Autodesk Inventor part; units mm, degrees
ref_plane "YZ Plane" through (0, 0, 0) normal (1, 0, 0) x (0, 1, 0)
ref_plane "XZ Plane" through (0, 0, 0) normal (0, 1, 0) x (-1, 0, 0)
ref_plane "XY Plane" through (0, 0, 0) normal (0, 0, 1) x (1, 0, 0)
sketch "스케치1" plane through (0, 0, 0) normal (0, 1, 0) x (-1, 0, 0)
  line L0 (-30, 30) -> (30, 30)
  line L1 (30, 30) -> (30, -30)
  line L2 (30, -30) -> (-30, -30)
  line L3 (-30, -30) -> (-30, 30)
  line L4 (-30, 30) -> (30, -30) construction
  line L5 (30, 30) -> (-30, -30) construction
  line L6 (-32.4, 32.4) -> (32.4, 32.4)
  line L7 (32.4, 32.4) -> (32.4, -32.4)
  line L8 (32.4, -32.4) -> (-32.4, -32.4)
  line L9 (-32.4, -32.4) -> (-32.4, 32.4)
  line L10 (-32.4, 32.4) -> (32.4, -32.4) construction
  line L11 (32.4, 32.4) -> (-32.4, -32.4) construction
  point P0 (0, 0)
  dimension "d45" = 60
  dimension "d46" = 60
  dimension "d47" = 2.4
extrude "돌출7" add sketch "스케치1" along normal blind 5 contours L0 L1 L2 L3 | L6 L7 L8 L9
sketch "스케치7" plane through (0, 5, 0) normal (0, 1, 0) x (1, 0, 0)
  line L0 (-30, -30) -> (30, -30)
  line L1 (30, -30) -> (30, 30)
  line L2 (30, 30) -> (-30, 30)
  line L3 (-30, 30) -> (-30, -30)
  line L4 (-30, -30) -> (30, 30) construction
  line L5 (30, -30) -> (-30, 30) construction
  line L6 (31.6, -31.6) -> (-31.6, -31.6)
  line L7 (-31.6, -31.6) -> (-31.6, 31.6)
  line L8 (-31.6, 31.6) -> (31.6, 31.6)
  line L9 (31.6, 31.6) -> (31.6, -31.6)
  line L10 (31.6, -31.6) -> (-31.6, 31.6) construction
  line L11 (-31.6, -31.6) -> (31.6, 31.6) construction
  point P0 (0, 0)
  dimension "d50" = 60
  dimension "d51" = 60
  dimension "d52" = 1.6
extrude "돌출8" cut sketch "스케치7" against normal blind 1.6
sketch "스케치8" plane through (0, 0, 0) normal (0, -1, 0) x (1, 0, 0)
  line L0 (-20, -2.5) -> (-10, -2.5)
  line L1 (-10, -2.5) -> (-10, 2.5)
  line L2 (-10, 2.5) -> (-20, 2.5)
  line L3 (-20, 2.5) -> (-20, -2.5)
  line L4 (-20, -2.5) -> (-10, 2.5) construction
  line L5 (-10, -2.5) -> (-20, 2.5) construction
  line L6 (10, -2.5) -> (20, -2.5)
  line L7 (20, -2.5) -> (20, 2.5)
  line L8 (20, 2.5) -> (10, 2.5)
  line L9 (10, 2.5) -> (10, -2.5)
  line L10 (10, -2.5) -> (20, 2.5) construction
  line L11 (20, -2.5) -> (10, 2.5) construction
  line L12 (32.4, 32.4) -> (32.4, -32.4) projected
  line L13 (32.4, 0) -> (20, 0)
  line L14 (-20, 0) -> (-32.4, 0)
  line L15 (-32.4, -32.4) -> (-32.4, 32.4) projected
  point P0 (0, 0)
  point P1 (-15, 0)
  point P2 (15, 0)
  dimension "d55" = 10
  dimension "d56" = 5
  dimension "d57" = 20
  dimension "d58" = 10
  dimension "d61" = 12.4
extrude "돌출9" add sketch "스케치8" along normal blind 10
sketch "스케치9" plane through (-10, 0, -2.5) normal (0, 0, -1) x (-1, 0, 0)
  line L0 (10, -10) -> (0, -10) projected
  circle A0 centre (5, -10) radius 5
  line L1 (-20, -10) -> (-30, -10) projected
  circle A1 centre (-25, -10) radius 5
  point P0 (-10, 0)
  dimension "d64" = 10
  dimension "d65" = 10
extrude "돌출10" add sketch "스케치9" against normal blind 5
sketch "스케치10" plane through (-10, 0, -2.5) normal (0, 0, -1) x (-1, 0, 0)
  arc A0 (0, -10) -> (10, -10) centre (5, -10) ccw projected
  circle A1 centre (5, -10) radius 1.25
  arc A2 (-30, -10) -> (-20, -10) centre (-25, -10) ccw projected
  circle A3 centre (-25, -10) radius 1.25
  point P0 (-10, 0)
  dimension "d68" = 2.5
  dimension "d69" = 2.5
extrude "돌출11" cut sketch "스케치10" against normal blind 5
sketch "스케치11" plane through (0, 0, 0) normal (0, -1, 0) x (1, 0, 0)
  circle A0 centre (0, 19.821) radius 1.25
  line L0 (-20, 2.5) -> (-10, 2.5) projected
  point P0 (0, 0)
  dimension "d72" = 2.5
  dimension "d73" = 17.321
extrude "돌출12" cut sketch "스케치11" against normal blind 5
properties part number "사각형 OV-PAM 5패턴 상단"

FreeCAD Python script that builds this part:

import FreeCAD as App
import Part
import Sketcher
Q = App.Units.Quantity

doc = App.newDocument("Part")
params = doc.addObject("Spreadsheet::Sheet", "Params")
for row, (alias, value) in enumerate([
    ("sketch1_width", "64.8 mm"),
    ("pad1_length", "5 mm"),
    ("sketch2_width", "60 mm"),
    ("pocket1_length", "1.6 mm"),
    ("sketch3_width", "10 mm"),
    ("sketch3_height", "5 mm"),
    ("pad2_length", "10 mm"),
    ("sketch4_diameter", "10 mm"),
    ("pad3_length", "5 mm"),
    ("sketch5_diameter", "2.5 mm"),
    ("pocket2_length", "5 mm"),
    ("sketch6_diameter", "2.5 mm"),
    ("pocket3_length", "5 mm"),
], start=1):
    params.set(f"A{row}", alias)
    params.set(f"B{row}", "=" + value)
    params.setAlias(f"B{row}", alias)

body = doc.addObject("PartDesign::Body", "Body")

sketch1 = doc.addObject("Sketcher::SketchObject", "Sketch")
body.addObject(sketch1)
sketch1.AttachmentSupport = (doc.XZ_Plane, [""])
sketch1.MapMode = "FlatFace"
sketch1.addGeometry([
    Part.LineSegment(App.Vector(-32, 32, 0), App.Vector(32, 32, 0)),
    Part.LineSegment(App.Vector(32, 32, 0), App.Vector(32, -32, 0)),
    Part.LineSegment(App.Vector(32, -32, 0), App.Vector(-32, -32, 0)),
    Part.LineSegment(App.Vector(-32, -32, 0), App.Vector(-32, 32, 0)),
], False)
sketch1.addConstraint([
    Sketcher.Constraint("Coincident", 0, 2, 1, 1),
    Sketcher.Constraint("Coincident", 1, 2, 2, 1),
    Sketcher.Constraint("Coincident", 2, 2, 3, 1),
    Sketcher.Constraint("Coincident", 3, 2, 0, 1),
    Sketcher.Constraint("Horizontal", 0),
    Sketcher.Constraint("Vertical", 1),
    Sketcher.Constraint("Horizontal", 2),
    Sketcher.Constraint("Vertical", 3),
    Sketcher.Constraint("Symmetric", 0, 2, 2, 2, -1, 1),
    Sketcher.Constraint("Equal", 2, 1),
    Sketcher.Constraint("DistanceX", 0, 1, 0, 2, Q("64.8 mm")),
])
sketch1.setExpression("Constraints[10]", "Params.sketch1_width")
pad1 = doc.addObject("PartDesign::Pad", "Pad")
body.addObject(pad1)
pad1.Profile = sketch1
pad1.setExpression("Length", "Params.pad1_length")
pad1.Reversed = True

sketch2 = doc.addObject("Sketcher::SketchObject", "Sketch001")
body.addObject(sketch2)
sketch2.AttachmentSupport = (doc.XZ_Plane, [""])
sketch2.MapMode = "FlatFace"
sketch2.AttachmentOffset = App.Placement(App.Vector(0, 0, -5), App.Rotation())
sketch2.addGeometry([
    Part.LineSegment(App.Vector(-32, 32, 0), App.Vector(32, 32, 0)),
    Part.LineSegment(App.Vector(32, 32, 0), App.Vector(32, -32, 0)),
    Part.LineSegment(App.Vector(32, -32, 0), App.Vector(-32, -32, 0)),
    Part.LineSegment(App.Vector(-32, -32, 0), App.Vector(-32, 32, 0)),
    Part.LineSegment(App.Vector(30, 30, 0), App.Vector(-30, 30, 0)),
    Part.LineSegment(App.Vector(-30, 30, 0), App.Vector(-30, -30, 0)),
    Part.LineSegment(App.Vector(-30, -30, 0), App.Vector(30, -30, 0)),
    Part.LineSegment(App.Vector(30, -30, 0), App.Vector(30, 30, 0)),
], False)
sketch2.addConstraint([
    Sketcher.Constraint("Coincident", 0, 2, 1, 1),
    Sketcher.Constraint("Coincident", 1, 2, 2, 1),
    Sketcher.Constraint("Coincident", 2, 2, 3, 1),
    Sketcher.Constraint("Coincident", 3, 2, 0, 1),
    Sketcher.Constraint("Coincident", 4, 2, 5, 1),
    Sketcher.Constraint("Coincident", 5, 2, 6, 1),
    Sketcher.Constraint("Coincident", 6, 2, 7, 1),
    Sketcher.Constraint("Coincident", 7, 2, 4, 1),
    Sketcher.Constraint("Horizontal", 0),
    Sketcher.Constraint("Vertical", 1),
    Sketcher.Constraint("Horizontal", 2),
    Sketcher.Constraint("Vertical", 3),
    Sketcher.Constraint("Horizontal", 4),
    Sketcher.Constraint("Vertical", 5),
    Sketcher.Constraint("Horizontal", 6),
    Sketcher.Constraint("Vertical", 7),
    Sketcher.Constraint("Symmetric", 0, 2, 2, 2, -1, 1),
    Sketcher.Constraint("Symmetric", 4, 2, 6, 2, -1, 1),
    Sketcher.Constraint("Equal", 2, 1),
    Sketcher.Constraint("Equal", 6, 5),
    Sketcher.Constraint("DistanceX", 4, 2, 4, 1, Q("60 mm")),
    Sketcher.Constraint("DistanceX", 3, 2, 4, 2, Q("1.6 mm")),
])
sketch2.setExpression("Constraints[20]", "Params.sketch2_width")
pocket1 = doc.addObject("PartDesign::Pocket", "Pocket")
body.addObject(pocket1)
pocket1.Profile = sketch2
pocket1.setExpression("Length", "Params.pocket1_length")
pocket1.Reversed = True

sketch3 = doc.addObject("Sketcher::SketchObject", "Sketch002")
body.addObject(sketch3)
sketch3.AttachmentSupport = (doc.XZ_Plane, [""])
sketch3.MapMode = "FlatFace"
sketch3.addGeometry([
    Part.LineSegment(App.Vector(-20, 2, 0), App.Vector(-20, -2, 0)),
    Part.LineSegment(App.Vector(-20, -2, 0), App.Vector(-10, -2, 0)),
    Part.LineSegment(App.Vector(-10, -2, 0), App.Vector(-10, 2, 0)),
    Part.LineSegment(App.Vector(-10, 2, 0), App.Vector(-20, 2, 0)),
    Part.LineSegment(App.Vector(10, 2, 0), App.Vector(10, -2, 0)),
    Part.LineSegment(App.Vector(10, -2, 0), App.Vector(20, -2, 0)),
    Part.LineSegment(App.Vector(20, -2, 0), App.Vector(20, 2, 0)),
    Part.LineSegment(App.Vector(20, 2, 0), App.Vector(10, 2, 0)),
], False)
sketch3.addConstraint([
    Sketcher.Constraint("Coincident", 0, 2, 1, 1),
    Sketcher.Constraint("Coincident", 1, 2, 2, 1),
    Sketcher.Constraint("Coincident", 2, 2, 3, 1),
    Sketcher.Constraint("Coincident", 3, 2, 0, 1),
    Sketcher.Constraint("Coincident", 4, 2, 5, 1),
    Sketcher.Constraint("Coincident", 5, 2, 6, 1),
    Sketcher.Constraint("Coincident", 6, 2, 7, 1),
    Sketcher.Constraint("Coincident", 7, 2, 4, 1),
    Sketcher.Constraint("Vertical", 0),
    Sketcher.Constraint("Horizontal", 1),
    Sketcher.Constraint("Vertical", 2),
    Sketcher.Constraint("Horizontal", 3),
    Sketcher.Constraint("Vertical", 4),
    Sketcher.Constraint("Horizontal", 5),
    Sketcher.Constraint("Vertical", 6),
    Sketcher.Constraint("Horizontal", 7),
    Sketcher.Constraint("Symmetric", 2, 2, 4, 2, -1, 1),
    Sketcher.Constraint("Symmetric", 0, 2, 6, 2, -1, 1),
    Sketcher.Constraint("Horizontal", 1, 2, 4, 2),
    Sketcher.Constraint("DistanceX", 1, 1, 1, 2, Q("10 mm")),
    Sketcher.Constraint("DistanceY", 0, 2, 0, 1, Q("5 mm")),
    Sketcher.Constraint("DistanceX", 0, 2, -1, 1, Q("20 mm")),
])
sketch3.setExpression("Constraints[19]", "Params.sketch3_width")
sketch3.setExpression("Constraints[20]", "Params.sketch3_height")
pad2 = doc.addObject("PartDesign::Pad", "Pad001")
body.addObject(pad2)
pad2.Profile = sketch3
pad2.setExpression("Length", "Params.pad2_length")

sketch4 = doc.addObject("Sketcher::SketchObject", "Sketch003")
body.addObject(sketch4)
sketch4.AttachmentSupport = (doc.XY_Plane, [""])
sketch4.MapMode = "FlatFace"
sketch4.AttachmentOffset = App.Placement(App.Vector(0, 0, -2.5), App.Rotation())
sketch4.addGeometry([
    Part.Circle(App.Vector(-15, -10, 0), App.Vector(0, 0, 1), 5),
    Part.Circle(App.Vector(15, -10, 0), App.Vector(0, 0, 1), 5),
], False)
sketch4.addConstraint([
    Sketcher.Constraint("Equal", 0, 1),
    Sketcher.Constraint("Symmetric", 0, 3, 1, 3, -2),
    Sketcher.Constraint("Diameter", 0, Q("10 mm")),
    Sketcher.Constraint("DistanceY", 0, 3, -1, 1, Q("10 mm")),
    Sketcher.Constraint("DistanceX", 0, 3, -1, 1, Q("15 mm")),
])
sketch4.setExpression("Constraints[2]", "Params.sketch4_diameter")
pad3 = doc.addObject("PartDesign::Pad", "Pad002")
body.addObject(pad3)
pad3.Profile = sketch4
pad3.setExpression("Length", "Params.pad3_length")

sketch5 = doc.addObject("Sketcher::SketchObject", "Sketch004")
body.addObject(sketch5)
sketch5.AttachmentSupport = (doc.XY_Plane, [""])
sketch5.MapMode = "FlatFace"
sketch5.AttachmentOffset = App.Placement(App.Vector(0, 0, -2.5), App.Rotation())
sketch5.addGeometry([
    Part.Circle(App.Vector(-15, -10, 0), App.Vector(0, 0, 1), 1.2),
    Part.Circle(App.Vector(15, -10, 0), App.Vector(0, 0, 1), 1.2),
], False)
sketch5.addConstraint([
    Sketcher.Constraint("Equal", 0, 1),
    Sketcher.Constraint("Symmetric", 0, 3, 1, 3, -2),
    Sketcher.Constraint("Diameter", 0, Q("2.5 mm")),
    Sketcher.Constraint("DistanceX", 0, 3, -1, 1, Q("15 mm")),
    Sketcher.Constraint("DistanceY", 0, 3, -1, 1, Q("10 mm")),
])
sketch5.setExpression("Constraints[2]", "Params.sketch5_diameter")
pocket2 = doc.addObject("PartDesign::Pocket", "Pocket001")
body.addObject(pocket2)
pocket2.Profile = sketch5
pocket2.setExpression("Length", "Params.pocket2_length")
pocket2.Reversed = True

sketch6 = doc.addObject("Sketcher::SketchObject", "Sketch005")
body.addObject(sketch6)
sketch6.AttachmentSupport = (doc.XZ_Plane, [""])
sketch6.MapMode = "FlatFace"
sketch6.addGeometry(Part.Circle(App.Vector(0, 19.8, 0), App.Vector(0, 0, 1), 1.2), False)
sketch6.addConstraint([
    Sketcher.Constraint("PointOnObject", 0, 3, -2),
    Sketcher.Constraint("Diameter", 0, Q("2.5 mm")),
    Sketcher.Constraint("DistanceY", -1, 1, 0, 3, Q("19.821 mm")),
])
sketch6.setExpression("Constraints[1]", "Params.sketch6_diameter")
pocket3 = doc.addObject("PartDesign::Pocket", "Pocket002")
body.addObject(pocket3)
pocket3.Profile = sketch6
pocket3.setExpression("Length", "Params.pocket3_length")

doc.recompute()
